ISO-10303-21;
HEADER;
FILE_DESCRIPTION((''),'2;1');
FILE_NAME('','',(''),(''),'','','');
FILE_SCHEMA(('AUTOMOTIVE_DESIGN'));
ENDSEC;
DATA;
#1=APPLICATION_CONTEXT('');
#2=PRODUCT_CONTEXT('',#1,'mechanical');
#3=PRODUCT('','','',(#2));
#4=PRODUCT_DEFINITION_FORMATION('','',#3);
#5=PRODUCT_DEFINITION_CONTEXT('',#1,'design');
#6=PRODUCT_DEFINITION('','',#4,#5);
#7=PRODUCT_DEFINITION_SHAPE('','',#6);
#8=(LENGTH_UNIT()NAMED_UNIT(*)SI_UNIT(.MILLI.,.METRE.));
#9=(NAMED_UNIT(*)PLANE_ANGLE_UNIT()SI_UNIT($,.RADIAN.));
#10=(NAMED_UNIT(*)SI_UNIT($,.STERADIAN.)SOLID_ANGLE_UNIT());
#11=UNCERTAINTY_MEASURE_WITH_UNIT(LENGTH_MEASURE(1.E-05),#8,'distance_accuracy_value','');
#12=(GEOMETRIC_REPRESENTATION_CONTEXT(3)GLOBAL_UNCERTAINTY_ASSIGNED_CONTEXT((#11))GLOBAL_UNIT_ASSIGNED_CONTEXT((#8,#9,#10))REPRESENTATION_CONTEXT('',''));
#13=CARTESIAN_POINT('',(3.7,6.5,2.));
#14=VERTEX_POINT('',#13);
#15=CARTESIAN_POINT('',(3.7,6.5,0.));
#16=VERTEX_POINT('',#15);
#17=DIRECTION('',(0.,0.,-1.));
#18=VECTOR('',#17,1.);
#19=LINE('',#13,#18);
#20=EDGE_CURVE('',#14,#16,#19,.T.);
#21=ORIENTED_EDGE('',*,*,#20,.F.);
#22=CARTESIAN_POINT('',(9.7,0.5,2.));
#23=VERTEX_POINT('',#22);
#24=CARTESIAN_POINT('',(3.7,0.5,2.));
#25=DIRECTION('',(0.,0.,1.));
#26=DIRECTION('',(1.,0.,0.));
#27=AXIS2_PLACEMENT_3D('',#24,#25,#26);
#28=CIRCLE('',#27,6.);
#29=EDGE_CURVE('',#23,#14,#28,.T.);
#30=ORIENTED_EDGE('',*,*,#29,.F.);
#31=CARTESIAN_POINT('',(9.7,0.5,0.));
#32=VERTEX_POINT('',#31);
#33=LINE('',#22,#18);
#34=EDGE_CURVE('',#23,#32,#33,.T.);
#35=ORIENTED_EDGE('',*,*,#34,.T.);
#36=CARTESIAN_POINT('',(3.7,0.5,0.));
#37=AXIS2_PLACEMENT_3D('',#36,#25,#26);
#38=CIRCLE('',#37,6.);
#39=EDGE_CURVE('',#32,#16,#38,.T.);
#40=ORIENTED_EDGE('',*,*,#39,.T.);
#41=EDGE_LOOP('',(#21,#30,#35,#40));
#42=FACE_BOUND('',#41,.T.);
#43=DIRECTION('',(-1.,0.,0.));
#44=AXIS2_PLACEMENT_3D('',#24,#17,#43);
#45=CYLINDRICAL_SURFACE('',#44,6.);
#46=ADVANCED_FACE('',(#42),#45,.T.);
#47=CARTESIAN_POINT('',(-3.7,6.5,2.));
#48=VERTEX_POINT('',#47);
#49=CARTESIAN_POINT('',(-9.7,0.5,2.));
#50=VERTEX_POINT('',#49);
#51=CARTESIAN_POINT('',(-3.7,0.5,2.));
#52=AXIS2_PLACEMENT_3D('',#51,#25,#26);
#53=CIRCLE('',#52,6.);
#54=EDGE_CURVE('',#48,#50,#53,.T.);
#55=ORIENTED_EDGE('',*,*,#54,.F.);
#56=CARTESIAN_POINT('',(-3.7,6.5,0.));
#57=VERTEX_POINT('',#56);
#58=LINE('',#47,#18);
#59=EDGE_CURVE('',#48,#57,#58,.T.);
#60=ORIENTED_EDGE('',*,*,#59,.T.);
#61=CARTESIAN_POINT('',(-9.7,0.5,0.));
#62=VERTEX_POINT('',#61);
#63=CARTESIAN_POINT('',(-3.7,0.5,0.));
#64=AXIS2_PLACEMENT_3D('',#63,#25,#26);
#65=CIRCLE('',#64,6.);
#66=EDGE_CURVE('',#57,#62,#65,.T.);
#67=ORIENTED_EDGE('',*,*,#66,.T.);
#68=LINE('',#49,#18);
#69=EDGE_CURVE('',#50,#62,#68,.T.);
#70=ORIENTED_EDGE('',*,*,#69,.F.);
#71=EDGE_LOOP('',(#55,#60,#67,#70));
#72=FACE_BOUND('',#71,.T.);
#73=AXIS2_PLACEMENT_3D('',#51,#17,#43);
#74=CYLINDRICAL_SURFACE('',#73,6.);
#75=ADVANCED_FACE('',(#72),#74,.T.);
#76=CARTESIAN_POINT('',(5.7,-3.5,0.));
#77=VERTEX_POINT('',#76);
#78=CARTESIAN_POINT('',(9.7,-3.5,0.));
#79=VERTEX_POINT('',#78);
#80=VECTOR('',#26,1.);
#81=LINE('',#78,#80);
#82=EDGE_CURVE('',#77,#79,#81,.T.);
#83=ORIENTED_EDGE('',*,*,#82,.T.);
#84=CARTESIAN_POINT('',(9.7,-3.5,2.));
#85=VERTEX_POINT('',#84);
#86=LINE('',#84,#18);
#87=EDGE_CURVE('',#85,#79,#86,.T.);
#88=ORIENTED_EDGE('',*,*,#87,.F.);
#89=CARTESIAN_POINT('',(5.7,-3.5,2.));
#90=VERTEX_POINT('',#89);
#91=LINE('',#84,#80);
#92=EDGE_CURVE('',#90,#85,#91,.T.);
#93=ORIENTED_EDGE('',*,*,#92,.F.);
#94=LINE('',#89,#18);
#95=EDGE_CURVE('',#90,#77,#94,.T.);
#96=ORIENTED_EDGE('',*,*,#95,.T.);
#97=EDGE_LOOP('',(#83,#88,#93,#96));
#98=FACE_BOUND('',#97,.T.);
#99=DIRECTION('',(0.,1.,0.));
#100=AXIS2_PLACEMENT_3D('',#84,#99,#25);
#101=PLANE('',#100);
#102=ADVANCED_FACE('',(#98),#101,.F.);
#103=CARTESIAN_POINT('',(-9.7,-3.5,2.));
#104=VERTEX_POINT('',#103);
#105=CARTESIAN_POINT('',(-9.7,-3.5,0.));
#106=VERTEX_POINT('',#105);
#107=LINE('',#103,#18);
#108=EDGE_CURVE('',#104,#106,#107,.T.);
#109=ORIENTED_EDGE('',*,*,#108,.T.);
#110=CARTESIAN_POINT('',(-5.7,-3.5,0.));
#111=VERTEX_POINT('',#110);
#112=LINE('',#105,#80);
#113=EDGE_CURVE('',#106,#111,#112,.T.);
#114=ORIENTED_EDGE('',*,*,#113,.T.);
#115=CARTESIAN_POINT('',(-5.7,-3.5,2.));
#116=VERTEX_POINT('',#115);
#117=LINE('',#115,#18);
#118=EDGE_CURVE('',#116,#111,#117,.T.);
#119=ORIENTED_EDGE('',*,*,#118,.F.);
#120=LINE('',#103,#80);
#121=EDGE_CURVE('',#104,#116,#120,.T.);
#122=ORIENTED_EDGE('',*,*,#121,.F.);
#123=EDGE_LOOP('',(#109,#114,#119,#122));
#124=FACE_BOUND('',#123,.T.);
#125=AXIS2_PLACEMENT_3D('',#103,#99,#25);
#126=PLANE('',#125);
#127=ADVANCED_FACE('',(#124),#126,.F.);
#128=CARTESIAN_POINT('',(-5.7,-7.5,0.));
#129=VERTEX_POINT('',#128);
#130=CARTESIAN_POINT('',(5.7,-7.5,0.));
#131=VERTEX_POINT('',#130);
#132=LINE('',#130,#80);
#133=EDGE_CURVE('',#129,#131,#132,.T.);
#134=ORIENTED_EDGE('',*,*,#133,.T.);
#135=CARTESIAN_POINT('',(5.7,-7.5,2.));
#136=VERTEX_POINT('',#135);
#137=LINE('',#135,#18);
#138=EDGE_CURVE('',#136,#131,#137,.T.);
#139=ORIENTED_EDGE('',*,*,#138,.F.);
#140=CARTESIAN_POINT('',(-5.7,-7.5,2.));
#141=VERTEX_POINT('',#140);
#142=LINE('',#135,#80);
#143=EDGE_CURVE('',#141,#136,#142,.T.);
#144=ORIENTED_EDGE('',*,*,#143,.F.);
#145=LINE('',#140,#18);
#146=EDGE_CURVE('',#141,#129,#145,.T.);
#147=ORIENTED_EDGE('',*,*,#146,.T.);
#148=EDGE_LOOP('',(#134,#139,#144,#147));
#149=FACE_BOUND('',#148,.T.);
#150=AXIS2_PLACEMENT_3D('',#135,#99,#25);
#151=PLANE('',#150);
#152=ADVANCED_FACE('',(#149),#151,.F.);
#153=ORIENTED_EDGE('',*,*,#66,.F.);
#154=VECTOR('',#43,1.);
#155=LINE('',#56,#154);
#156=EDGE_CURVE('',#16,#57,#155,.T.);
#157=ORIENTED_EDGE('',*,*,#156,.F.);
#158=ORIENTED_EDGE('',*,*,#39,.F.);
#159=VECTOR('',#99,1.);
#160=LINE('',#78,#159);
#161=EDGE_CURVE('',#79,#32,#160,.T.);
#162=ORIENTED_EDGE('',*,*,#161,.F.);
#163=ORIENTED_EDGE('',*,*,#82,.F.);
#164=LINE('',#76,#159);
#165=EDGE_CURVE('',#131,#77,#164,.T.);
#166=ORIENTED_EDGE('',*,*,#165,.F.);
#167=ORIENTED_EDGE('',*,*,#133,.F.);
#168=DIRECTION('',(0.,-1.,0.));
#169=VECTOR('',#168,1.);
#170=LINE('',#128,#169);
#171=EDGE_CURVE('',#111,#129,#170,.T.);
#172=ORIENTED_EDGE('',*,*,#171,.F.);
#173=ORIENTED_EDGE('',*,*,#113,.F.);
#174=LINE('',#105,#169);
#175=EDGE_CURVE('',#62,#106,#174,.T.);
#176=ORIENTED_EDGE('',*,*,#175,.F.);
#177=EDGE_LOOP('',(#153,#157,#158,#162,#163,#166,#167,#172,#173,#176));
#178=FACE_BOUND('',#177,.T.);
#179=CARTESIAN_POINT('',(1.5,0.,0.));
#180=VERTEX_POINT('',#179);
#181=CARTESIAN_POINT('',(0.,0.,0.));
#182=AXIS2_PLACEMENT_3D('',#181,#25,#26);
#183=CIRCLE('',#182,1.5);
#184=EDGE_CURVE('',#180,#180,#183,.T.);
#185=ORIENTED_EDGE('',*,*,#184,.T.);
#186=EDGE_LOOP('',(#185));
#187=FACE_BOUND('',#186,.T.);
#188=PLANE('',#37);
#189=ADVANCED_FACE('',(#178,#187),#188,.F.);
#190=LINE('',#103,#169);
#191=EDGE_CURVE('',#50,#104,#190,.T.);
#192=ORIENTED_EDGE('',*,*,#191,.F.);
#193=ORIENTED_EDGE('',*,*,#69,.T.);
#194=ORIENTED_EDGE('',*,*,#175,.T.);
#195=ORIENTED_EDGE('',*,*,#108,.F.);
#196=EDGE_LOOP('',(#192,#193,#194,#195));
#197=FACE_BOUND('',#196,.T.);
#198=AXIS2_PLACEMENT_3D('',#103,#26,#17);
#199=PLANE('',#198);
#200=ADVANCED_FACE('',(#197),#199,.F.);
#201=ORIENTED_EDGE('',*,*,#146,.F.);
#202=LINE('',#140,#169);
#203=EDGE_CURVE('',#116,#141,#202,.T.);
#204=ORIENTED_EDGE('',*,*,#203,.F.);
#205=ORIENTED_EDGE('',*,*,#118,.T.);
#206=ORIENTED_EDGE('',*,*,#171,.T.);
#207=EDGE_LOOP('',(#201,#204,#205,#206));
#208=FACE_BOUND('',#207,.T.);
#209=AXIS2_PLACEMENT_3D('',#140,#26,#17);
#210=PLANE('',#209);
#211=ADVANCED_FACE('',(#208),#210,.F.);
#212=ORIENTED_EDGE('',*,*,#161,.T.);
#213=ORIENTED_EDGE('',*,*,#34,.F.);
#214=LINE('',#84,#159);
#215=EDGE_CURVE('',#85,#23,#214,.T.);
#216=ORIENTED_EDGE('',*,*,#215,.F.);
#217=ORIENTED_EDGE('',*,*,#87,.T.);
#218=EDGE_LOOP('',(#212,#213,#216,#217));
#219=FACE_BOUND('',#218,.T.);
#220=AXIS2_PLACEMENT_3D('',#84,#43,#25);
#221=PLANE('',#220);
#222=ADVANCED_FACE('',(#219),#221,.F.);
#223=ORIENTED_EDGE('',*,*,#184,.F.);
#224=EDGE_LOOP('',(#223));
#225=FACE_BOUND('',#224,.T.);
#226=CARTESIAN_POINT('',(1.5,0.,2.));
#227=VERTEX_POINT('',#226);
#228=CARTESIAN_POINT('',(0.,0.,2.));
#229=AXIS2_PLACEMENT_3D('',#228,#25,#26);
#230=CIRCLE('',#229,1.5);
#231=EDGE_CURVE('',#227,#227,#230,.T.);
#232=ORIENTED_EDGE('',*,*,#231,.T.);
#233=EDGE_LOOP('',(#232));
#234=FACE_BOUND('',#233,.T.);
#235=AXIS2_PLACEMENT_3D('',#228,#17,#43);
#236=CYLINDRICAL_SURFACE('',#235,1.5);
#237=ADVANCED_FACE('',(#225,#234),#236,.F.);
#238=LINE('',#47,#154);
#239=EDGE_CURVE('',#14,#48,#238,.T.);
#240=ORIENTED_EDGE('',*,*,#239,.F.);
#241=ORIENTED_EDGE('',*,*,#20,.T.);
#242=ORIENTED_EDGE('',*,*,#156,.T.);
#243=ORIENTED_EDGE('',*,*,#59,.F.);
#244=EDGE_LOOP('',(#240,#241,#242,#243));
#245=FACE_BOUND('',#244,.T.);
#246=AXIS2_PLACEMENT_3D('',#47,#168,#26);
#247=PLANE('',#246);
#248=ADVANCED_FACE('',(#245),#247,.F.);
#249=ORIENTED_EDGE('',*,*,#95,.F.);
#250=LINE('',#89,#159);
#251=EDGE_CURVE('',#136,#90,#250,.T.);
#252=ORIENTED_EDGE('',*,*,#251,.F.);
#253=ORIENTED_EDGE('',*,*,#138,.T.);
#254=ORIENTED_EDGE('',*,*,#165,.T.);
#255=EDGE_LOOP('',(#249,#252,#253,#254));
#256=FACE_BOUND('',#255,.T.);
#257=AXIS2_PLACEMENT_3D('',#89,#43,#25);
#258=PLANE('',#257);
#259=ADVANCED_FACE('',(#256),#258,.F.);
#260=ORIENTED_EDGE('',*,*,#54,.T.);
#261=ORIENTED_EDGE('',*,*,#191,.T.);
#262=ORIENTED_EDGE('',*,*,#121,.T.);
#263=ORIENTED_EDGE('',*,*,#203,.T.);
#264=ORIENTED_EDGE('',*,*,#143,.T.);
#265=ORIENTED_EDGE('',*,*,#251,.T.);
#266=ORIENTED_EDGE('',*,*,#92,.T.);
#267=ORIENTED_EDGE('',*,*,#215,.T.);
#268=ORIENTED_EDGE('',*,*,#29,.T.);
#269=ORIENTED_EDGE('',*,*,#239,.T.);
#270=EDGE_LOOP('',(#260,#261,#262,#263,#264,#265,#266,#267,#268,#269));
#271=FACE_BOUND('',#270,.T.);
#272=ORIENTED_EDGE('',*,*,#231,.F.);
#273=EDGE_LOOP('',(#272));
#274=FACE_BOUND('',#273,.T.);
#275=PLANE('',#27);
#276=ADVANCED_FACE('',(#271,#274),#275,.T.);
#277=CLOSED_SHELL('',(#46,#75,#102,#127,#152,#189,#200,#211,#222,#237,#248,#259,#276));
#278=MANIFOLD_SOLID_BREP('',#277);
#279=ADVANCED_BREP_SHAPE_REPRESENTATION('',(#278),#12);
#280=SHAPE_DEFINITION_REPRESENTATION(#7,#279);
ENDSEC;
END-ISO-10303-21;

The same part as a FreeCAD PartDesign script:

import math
import FreeCAD as App
import Part
import Sketcher
from FreeCAD import Vector

doc = App.newDocument("Part")
params = doc.addObject("Spreadsheet::Sheet", "Params")
for row, (alias, value) in enumerate([
    ("sketch1_diameter", "3 mm"),
    ("sketch1_radius", "6 mm"),
    ("sketch1_width", "4 mm"),
    ("sketch1_width2", "7.4 mm"),
    ("pad1_length", "2 mm"),
], start=1):
    params.set(f"A{row}", alias)
    params.set(f"B{row}", "=" + value)
    params.setAlias(f"B{row}", alias)

body = doc.addObject("PartDesign::Body", "Body")

# Sketch on XY plane
sketch1 = body.newObject("Sketcher::SketchObject", "Sketch")
sketch1.AttachmentSupport = (doc.getObject("XY_Plane"), [""])
sketch1.MapMode = "FlatFace"
sketch1.addGeometry(Part.LineSegment(Vector(9.7, -3.5, 0), Vector(9.7, 0.5, 0)), False)
sketch1.addGeometry(Part.ArcOfCircle(Part.Circle(Vector(3.7, 0.5, 0), Vector(0, 0, 1), 6), math.radians(0), math.radians(90)), False)
sketch1.addGeometry(Part.LineSegment(Vector(3.7, 6.5, 0), Vector(-3.7, 6.5, 0)), False)
sketch1.addGeometry(Part.ArcOfCircle(Part.Circle(Vector(-3.7, 0.5, 0), Vector(0, 0, 1), 6), math.radians(90), math.radians(180)), False)
sketch1.addGeometry(Part.LineSegment(Vector(-9.7, 0.5, 0), Vector(-9.7, -3.5, 0)), False)
sketch1.addGeometry(Part.LineSegment(Vector(-9.7, -3.5, 0), Vector(-5.7, -3.5, 0)), False)
sketch1.addGeometry(Part.LineSegment(Vector(-5.7, -3.5, 0), Vector(-5.7, -7.5, 0)), False)
sketch1.addGeometry(Part.LineSegment(Vector(-5.7, -7.5, 0), Vector(5.7, -7.5, 0)), False)
sketch1.addGeometry(Part.LineSegment(Vector(5.7, -7.5, 0), Vector(5.7, -3.5, 0)), False)
sketch1.addGeometry(Part.LineSegment(Vector(5.7, -3.5, 0), Vector(9.7, -3.5, 0)), False)
sketch1.addGeometry(Part.Circle(Vector(0, 0, 0), Vector(0, 0, 1), 1.5), False)
sketch1.addConstraint(Sketcher.Constraint("Tangent", 0, 2, 1, 1))
sketch1.addConstraint(Sketcher.Constraint("Tangent", 1, 2, 2, 1))
sketch1.addConstraint(Sketcher.Constraint("Tangent", 2, 2, 3, 1))
sketch1.addConstraint(Sketcher.Constraint("Tangent", 3, 2, 4, 1))
sketch1.addConstraint(Sketcher.Constraint("Coincident", 4, 2, 5, 1))
sketch1.addConstraint(Sketcher.Constraint("Coincident", 5, 2, 6, 1))
sketch1.addConstraint(Sketcher.Constraint("Coincident", 6, 2, 7, 1))
sketch1.addConstraint(Sketcher.Constraint("Coincident", 7, 2, 8, 1))
sketch1.addConstraint(Sketcher.Constraint("Coincident", 8, 2, 9, 1))
sketch1.addConstraint(Sketcher.Constraint("Coincident", 9, 2, 0, 1))
sketch1.addConstraint(Sketcher.Constraint("Vertical", 0))
sketch1.addConstraint(Sketcher.Constraint("Horizontal", 2))
sketch1.addConstraint(Sketcher.Constraint("Vertical", 4))
sketch1.addConstraint(Sketcher.Constraint("Horizontal", 5))
sketch1.addConstraint(Sketcher.Constraint("Vertical", 6))
sketch1.addConstraint(Sketcher.Constraint("Horizontal", 7))
sketch1.addConstraint(Sketcher.Constraint("Vertical", 8))
sketch1.addConstraint(Sketcher.Constraint("Horizontal", 9))
sketch1.addConstraint(Sketcher.Constraint("Coincident", 10, 3, -1, 1))
sketch1.addConstraint(Sketcher.Constraint("Equal", 1, 3))
sketch1.addConstraint(Sketcher.Constraint("Symmetric", 5, 2, 8, 2, -2))
sketch1.addConstraint(Sketcher.Constraint("Equal", 5, 9))
sketch1.addConstraint(Sketcher.Constraint("Equal", 9, 0))
sketch1.addConstraint(Sketcher.Constraint("Equal", 4, 6))
sketch1.addConstraint(Sketcher.Constraint("Diameter", 10, 3.0))
sketch1.addConstraint(Sketcher.Constraint("Radius", 1, 6.0))
sketch1.addConstraint(Sketcher.Constraint("DistanceX", 5, 1, 5, 2, 4.0))
sketch1.addConstraint(Sketcher.Constraint("DistanceX", 2, 2, 2, 1, 7.4))
sketch1.addConstraint(Sketcher.Constraint("DistanceY", -1, 1, 1, 3, 0.5))
sketch1.setExpression("Constraints[24]", "Params.sketch1_diameter")
sketch1.setExpression("Constraints[25]", "Params.sketch1_radius")
sketch1.setExpression("Constraints[26]", "Params.sketch1_width")
sketch1.setExpression("Constraints[27]", "Params.sketch1_width2")
pad1 = body.newObject("PartDesign::Pad", "Pad")
pad1.Profile = sketch1
pad1.setExpression("Length", "Params.pad1_length")

doc.recompute()
